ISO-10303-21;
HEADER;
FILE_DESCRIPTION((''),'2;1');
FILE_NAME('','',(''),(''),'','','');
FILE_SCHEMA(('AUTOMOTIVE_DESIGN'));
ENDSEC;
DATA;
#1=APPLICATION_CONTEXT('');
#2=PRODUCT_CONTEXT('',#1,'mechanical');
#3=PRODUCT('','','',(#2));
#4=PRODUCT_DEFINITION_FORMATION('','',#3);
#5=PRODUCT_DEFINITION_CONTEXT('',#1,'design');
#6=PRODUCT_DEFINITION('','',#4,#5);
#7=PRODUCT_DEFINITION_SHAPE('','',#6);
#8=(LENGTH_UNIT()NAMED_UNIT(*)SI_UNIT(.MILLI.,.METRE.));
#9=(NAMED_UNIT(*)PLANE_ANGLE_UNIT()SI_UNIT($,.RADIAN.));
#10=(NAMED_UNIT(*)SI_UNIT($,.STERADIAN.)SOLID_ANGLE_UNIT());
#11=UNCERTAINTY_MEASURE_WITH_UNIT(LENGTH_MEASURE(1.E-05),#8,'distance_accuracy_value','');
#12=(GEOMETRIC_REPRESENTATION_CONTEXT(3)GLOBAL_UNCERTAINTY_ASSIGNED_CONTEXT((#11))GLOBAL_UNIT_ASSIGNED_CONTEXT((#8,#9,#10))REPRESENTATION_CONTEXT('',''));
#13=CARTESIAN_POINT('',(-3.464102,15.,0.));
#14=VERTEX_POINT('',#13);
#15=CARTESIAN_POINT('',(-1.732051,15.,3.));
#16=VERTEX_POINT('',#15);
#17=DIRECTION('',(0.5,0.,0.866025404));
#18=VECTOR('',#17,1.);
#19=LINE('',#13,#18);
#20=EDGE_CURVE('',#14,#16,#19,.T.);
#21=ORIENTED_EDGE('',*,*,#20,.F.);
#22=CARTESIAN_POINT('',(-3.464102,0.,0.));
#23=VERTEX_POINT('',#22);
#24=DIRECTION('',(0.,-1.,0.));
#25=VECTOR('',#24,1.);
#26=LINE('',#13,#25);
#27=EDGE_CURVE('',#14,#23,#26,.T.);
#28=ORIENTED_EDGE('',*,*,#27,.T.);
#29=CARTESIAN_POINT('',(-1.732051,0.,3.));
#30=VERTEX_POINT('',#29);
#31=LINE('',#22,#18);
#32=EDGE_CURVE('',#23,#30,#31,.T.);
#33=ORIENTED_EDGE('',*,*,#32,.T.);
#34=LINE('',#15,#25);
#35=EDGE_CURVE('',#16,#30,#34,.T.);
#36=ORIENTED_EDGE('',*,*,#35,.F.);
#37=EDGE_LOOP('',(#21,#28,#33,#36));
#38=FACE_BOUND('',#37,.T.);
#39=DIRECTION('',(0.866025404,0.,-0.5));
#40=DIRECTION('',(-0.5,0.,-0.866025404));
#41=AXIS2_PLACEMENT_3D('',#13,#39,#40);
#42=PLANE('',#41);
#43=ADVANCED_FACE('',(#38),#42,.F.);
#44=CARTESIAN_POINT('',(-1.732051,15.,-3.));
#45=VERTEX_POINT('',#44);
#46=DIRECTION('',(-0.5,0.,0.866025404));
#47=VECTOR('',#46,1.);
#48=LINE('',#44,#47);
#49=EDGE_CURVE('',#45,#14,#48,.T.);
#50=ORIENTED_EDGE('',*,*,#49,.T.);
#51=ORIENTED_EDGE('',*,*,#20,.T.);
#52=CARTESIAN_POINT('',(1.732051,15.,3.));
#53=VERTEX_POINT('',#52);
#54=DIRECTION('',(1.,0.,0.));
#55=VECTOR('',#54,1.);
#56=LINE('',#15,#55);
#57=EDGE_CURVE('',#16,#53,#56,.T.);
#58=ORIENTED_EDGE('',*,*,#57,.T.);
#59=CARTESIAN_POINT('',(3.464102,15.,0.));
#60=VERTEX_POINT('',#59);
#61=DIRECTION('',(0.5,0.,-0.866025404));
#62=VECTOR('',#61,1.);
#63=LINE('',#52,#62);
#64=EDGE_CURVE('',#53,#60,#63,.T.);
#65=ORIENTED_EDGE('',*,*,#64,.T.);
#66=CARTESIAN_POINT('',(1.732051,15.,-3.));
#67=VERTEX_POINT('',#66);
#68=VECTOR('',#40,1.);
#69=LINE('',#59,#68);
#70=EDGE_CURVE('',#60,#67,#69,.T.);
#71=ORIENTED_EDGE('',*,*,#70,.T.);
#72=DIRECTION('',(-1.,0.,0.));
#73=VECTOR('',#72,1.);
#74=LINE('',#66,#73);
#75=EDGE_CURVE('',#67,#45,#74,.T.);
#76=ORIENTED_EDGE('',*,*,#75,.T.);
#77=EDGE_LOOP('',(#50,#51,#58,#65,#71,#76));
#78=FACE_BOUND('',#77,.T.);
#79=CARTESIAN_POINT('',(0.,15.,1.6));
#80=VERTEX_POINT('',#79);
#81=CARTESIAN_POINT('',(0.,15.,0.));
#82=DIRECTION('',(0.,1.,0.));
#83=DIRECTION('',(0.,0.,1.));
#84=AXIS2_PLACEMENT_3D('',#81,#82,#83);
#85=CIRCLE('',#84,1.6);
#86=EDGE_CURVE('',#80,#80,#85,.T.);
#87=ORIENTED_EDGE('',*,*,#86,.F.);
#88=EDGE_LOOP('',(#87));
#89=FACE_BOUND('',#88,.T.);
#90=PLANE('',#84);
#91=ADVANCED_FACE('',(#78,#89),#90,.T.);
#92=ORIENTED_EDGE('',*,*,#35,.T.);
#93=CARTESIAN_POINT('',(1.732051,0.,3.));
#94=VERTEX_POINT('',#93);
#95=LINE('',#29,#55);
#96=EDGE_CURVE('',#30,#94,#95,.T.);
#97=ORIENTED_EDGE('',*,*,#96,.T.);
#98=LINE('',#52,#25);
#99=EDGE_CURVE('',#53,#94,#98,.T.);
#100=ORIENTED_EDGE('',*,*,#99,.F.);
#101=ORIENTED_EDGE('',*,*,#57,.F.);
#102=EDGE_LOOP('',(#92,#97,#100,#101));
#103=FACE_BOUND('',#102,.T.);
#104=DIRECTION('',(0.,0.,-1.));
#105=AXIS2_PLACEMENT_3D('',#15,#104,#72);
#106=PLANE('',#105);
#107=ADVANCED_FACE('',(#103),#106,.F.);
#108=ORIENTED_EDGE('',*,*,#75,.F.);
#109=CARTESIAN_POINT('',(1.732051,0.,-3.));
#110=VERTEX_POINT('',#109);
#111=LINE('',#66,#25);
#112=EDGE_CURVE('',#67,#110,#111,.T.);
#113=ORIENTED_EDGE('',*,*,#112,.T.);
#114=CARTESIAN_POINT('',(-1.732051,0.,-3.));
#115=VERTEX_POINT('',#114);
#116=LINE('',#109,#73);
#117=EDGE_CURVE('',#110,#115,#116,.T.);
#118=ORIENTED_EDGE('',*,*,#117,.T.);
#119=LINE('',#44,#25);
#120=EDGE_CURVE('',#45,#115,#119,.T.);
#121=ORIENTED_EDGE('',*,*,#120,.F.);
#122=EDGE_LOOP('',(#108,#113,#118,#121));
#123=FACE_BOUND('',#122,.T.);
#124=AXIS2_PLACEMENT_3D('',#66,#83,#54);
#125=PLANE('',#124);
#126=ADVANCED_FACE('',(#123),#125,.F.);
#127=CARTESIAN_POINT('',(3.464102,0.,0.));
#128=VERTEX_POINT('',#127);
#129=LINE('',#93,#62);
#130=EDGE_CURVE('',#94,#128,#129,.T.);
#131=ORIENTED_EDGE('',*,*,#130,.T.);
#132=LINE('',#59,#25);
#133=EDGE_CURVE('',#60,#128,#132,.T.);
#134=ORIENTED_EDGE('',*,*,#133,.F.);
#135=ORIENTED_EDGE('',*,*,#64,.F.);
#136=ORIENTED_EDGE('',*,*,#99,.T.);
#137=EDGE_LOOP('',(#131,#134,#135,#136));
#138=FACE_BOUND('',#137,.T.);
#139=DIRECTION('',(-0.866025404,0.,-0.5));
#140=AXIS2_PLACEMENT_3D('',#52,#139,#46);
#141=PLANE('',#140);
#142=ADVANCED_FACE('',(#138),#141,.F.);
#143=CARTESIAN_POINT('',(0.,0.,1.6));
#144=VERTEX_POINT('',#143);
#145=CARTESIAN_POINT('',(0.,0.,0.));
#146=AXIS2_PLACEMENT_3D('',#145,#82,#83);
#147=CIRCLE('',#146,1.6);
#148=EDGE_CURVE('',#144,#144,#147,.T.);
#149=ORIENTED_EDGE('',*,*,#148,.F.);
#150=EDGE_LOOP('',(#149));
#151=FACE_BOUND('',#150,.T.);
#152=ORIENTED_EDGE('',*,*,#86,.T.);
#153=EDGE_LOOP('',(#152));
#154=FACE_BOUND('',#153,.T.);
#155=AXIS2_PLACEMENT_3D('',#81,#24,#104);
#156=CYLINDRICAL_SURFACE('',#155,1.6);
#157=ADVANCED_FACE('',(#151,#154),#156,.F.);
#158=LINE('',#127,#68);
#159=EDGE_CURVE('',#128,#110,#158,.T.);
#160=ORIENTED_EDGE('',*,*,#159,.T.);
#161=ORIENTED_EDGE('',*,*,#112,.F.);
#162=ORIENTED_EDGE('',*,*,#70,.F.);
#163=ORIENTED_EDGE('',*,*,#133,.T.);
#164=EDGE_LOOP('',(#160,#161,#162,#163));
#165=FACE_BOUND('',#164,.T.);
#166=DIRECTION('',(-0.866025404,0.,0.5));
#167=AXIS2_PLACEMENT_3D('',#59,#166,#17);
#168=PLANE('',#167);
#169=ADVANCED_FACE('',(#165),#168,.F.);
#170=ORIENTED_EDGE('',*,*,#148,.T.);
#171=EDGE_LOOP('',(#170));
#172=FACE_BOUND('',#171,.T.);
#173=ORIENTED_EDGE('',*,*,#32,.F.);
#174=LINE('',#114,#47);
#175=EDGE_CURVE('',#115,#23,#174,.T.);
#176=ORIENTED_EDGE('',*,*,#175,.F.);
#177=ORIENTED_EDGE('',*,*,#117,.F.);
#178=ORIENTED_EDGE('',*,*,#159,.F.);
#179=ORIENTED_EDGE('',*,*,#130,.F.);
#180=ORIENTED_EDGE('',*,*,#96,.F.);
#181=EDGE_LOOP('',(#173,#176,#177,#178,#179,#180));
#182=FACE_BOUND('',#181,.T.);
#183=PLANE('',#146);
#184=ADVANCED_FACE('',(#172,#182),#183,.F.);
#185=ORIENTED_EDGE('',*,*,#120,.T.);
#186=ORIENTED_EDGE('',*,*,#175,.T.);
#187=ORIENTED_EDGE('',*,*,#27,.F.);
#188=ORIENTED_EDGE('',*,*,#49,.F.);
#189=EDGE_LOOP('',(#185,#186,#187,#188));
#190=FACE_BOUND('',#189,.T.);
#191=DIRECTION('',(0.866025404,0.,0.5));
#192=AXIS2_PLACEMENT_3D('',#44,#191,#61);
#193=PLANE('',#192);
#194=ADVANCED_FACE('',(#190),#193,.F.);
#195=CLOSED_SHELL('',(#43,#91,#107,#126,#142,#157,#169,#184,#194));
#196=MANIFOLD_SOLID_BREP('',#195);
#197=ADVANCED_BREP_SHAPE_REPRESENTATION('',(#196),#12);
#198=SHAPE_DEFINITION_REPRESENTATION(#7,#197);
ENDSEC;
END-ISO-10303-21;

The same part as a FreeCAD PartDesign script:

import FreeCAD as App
import Part
import Sketcher
from FreeCAD import Vector
Q = App.Units.Quantity

doc = App.newDocument("Part")
body = doc.addObject("PartDesign::Body", "Body")

sketch1 = body.newObject("Sketcher::SketchObject", "Sketch")
sketch1.AttachmentSupport = (doc.getObject("XZ_Plane"), [""])
sketch1.MapMode = "FlatFace"
sketch1.addGeometry([
    Part.LineSegment(Vector(3.5, 0, 0), Vector(1.7, -3, 0)),
    Part.LineSegment(Vector(1.7, -3, 0), Vector(-1.7, -3, 0)),
    Part.LineSegment(Vector(-1.7, -3, 0), Vector(-3.5, 0, 0)),
    Part.LineSegment(Vector(-3.5, 0, 0), Vector(-1.7, 3, 0)),
    Part.LineSegment(Vector(-1.7, 3, 0), Vector(1.7, 3, 0)),
    Part.LineSegment(Vector(1.7, 3, 0), Vector(3.5, 0, 0)),
    Part.Circle(Vector(0, 0, 0), Vector(0, 0, 1), 1.6),
], False)
sketch1.addConstraint([
    Sketcher.Constraint("Coincident", 0, 2, 1, 1),
    Sketcher.Constraint("Coincident", 1, 2, 2, 1),
    Sketcher.Constraint("Coincident", 2, 2, 3, 1),
    Sketcher.Constraint("Coincident", 3, 2, 4, 1),
    Sketcher.Constraint("Coincident", 4, 2, 5, 1),
    Sketcher.Constraint("Coincident", 5, 2, 0, 1),
    Sketcher.Constraint("Horizontal", 1),
    Sketcher.Constraint("Horizontal", 4),
    Sketcher.Constraint("Coincident", 6, 3, -1, 1),
    Sketcher.Constraint("Symmetric", 0, 2, 3, 2, -1, 1),
    Sketcher.Constraint("Symmetric", 2, 2, 5, 2, -1, 1),
    Sketcher.Constraint("PointOnObject", 2, 2, -1),
    Sketcher.Constraint("Parallel", 2, 5),
    Sketcher.Constraint("Vertical", 1, 2, 3, 2),
    Sketcher.Constraint("Diameter", 6, 3.2),
    Sketcher.Constraint("Angle", 0, Q("-120 deg")),
    Sketcher.Constraint("DistanceY", 0, 2, -1, 1, 3.0),
    Sketcher.Constraint("DistanceX", 1, 2, 1, 1, 3.464102),
])
pad1 = body.newObject("PartDesign::Pad", "Pad")
pad1.Profile = sketch1
pad1.Length = 15
pad1.Reversed = True

doc.recompute()
